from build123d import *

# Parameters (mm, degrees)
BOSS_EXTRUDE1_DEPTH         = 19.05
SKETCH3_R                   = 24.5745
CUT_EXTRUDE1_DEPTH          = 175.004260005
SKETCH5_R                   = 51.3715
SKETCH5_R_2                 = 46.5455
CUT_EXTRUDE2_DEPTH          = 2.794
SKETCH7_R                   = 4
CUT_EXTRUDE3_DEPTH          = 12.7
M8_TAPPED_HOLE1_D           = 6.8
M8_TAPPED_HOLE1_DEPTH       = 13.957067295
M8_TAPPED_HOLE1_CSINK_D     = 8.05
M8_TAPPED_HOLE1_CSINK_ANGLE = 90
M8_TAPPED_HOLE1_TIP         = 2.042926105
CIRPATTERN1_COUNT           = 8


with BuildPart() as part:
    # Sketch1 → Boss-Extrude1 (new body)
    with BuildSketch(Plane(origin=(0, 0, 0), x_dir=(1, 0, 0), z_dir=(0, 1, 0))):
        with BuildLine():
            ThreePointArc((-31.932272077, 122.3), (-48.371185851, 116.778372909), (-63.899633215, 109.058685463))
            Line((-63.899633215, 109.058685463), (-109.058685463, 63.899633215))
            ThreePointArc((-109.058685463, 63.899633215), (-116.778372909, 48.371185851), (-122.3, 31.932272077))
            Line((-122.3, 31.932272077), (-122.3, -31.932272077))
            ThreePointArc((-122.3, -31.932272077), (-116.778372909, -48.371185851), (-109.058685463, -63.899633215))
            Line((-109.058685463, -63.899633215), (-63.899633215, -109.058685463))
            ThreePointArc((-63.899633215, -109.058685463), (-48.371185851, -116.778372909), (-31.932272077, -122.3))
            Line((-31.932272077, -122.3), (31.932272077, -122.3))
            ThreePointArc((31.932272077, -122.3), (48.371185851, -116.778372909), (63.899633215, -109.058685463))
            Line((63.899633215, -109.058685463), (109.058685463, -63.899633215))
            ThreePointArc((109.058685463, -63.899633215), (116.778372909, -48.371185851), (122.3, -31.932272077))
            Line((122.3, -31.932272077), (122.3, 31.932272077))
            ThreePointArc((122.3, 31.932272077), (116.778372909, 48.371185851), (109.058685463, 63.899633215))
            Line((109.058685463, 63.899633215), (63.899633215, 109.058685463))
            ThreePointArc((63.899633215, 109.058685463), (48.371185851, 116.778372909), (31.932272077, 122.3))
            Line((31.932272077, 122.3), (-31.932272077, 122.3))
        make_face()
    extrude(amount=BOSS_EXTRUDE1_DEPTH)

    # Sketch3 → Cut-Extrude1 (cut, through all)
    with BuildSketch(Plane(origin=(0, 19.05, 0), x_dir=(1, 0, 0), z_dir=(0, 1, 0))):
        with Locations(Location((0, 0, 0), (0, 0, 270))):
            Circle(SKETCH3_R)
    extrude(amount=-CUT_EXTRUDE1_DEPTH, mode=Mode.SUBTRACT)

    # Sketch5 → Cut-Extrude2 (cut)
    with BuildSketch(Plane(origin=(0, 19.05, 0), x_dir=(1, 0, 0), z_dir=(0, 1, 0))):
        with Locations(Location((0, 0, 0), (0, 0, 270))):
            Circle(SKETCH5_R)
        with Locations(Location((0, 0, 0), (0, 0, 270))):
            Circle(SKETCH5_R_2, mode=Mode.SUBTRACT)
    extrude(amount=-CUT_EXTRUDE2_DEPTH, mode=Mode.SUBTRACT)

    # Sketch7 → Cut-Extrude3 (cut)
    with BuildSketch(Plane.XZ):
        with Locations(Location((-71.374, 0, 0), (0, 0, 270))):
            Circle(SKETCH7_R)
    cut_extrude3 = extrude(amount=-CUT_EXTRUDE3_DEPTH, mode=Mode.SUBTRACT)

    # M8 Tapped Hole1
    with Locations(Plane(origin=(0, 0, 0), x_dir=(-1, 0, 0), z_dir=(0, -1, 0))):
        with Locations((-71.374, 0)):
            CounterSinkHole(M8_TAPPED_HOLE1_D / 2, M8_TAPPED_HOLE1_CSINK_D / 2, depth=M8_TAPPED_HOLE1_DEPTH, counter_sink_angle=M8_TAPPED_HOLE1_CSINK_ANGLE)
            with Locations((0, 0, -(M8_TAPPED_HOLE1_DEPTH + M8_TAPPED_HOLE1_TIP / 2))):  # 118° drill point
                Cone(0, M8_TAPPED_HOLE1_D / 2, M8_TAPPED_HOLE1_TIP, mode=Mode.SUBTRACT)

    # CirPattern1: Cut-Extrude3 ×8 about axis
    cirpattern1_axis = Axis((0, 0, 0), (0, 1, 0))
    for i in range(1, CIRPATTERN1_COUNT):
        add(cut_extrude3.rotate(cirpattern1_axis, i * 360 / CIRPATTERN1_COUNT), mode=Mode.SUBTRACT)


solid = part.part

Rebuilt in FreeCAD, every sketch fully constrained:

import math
import FreeCAD as App
import Part
import Sketcher

V = App.Vector
Q = App.Units.Quantity

doc = App.newDocument("Part")
body = doc.addObject("PartDesign::Body", "Body")

# Sketch on XZ plane
sketch1 = body.newObject("Sketcher::SketchObject", "Sketch")
sketch1.AttachmentSupport = (doc.getObject("XZ_Plane"), [""])
sketch1.MapMode = "FlatFace"
sketch1.addGeometry(Part.ArcOfCircle(Part.Circle(V(0, 0, 0), V(0, 0, 1), 126), math.radians(-120.37), math.radians(-104.63)), False)
sketch1.addGeometry(Part.LineSegment(V(-64, -109, 0), V(-109, -64, 0)), False)
sketch1.addGeometry(Part.ArcOfCircle(Part.Circle(V(0, 0, 0), V(0, 0, 1), 126), math.radians(-165.37), math.radians(-149.63)), False)
sketch1.addGeometry(Part.LineSegment(V(-122, -32, 0), V(-122, 32, 0)), False)
sketch1.addGeometry(Part.ArcOfCircle(Part.Circle(V(0, 0, 0), V(0, 0, 1), 126), math.radians(149.63), math.radians(165.37)), False)
sketch1.addGeometry(Part.LineSegment(V(-109, 64, 0), V(-64, 109, 0)), False)
sketch1.addGeometry(Part.ArcOfCircle(Part.Circle(V(0, 0, 0), V(0, 0, 1), 126), math.radians(104.63), math.radians(120.37)), False)
sketch1.addGeometry(Part.LineSegment(V(-32, 122, 0), V(32, 122, 0)), False)
sketch1.addGeometry(Part.ArcOfCircle(Part.Circle(V(0, 0, 0), V(0, 0, 1), 126), math.radians(59.63), math.radians(75.37)), False)
sketch1.addGeometry(Part.LineSegment(V(64, 109, 0), V(109, 64, 0)), False)
sketch1.addGeometry(Part.ArcOfCircle(Part.Circle(V(0, 0, 0), V(0, 0, 1), 126), math.radians(14.63), math.radians(30.37)), False)
sketch1.addGeometry(Part.LineSegment(V(122, 32, 0), V(122, -32, 0)), False)
sketch1.addGeometry(Part.ArcOfCircle(Part.Circle(V(0, 0, 0), V(0, 0, 1), 126), math.radians(-30.37), math.radians(-14.63)), False)
sketch1.addGeometry(Part.LineSegment(V(109, -64, 0), V(64, -109, 0)), False)
sketch1.addGeometry(Part.ArcOfCircle(Part.Circle(V(0, 0, 0), V(0, 0, 1), 126), math.radians(-75.37), math.radians(-59.63)), False)
sketch1.addGeometry(Part.LineSegment(V(32, -122, 0), V(-32, -122, 0)), False)
sketch1.addConstraint(Sketcher.Constraint("Coincident", 0, 1, 1, 1))
sketch1.addConstraint(Sketcher.Constraint("Coincident", 1, 2, 2, 2))
sketch1.addConstraint(Sketcher.Constraint("Coincident", 2, 1, 3, 1))
sketch1.addConstraint(Sketcher.Constraint("Coincident", 3, 2, 4, 2))
sketch1.addConstraint(Sketcher.Constraint("Coincident", 4, 1, 5, 1))
sketch1.addConstraint(Sketcher.Constraint("Coincident", 5, 2, 6, 2))
sketch1.addConstraint(Sketcher.Constraint("Coincident", 6, 1, 7, 1))
sketch1.addConstraint(Sketcher.Constraint("Coincident", 7, 2, 8, 2))
sketch1.addConstraint(Sketcher.Constraint("Coincident", 8, 1, 9, 1))
sketch1.addConstraint(Sketcher.Constraint("Coincident", 9, 2, 10, 2))
sketch1.addConstraint(Sketcher.Constraint("Coincident", 10, 1, 11, 1))
sketch1.addConstraint(Sketcher.Constraint("Coincident", 11, 2, 12, 2))
sketch1.addConstraint(Sketcher.Constraint("Coincident", 12, 1, 13, 1))
sketch1.addConstraint(Sketcher.Constraint("Coincident", 13, 2, 14, 2))
sketch1.addConstraint(Sketcher.Constraint("Coincident", 14, 1, 15, 1))
sketch1.addConstraint(Sketcher.Constraint("Coincident", 15, 2, 0, 2))
sketch1.addConstraint(Sketcher.Constraint("Vertical", 3))
sketch1.addConstraint(Sketcher.Constraint("Horizontal", 7))
sketch1.addConstraint(Sketcher.Constraint("Vertical", 11))
sketch1.addConstraint(Sketcher.Constraint("Horizontal", 15))
sketch1.addConstraint(Sketcher.Constraint("Coincident", 0, 3, -1, 1))
sketch1.addConstraint(Sketcher.Constraint("Coincident", 2, 3, -1, 1))
sketch1.addConstraint(Sketcher.Constraint("Coincident", 4, 3, -1, 1))
sketch1.addConstraint(Sketcher.Constraint("Coincident", 6, 3, -1, 1))
sketch1.addConstraint(Sketcher.Constraint("Coincident", 8, 3, -1, 1))
sketch1.addConstraint(Sketcher.Constraint("Coincident", 10, 3, -1, 1))
sketch1.addConstraint(Sketcher.Constraint("Coincident", 12, 3, -1, 1))
sketch1.addConstraint(Sketcher.Constraint("Coincident", 14, 3, -1, 1))
sketch1.addConstraint(Sketcher.Constraint("Equal", 0, 2))
sketch1.addConstraint(Sketcher.Constraint("Equal", 2, 4))
sketch1.addConstraint(Sketcher.Constraint("Equal", 4, 6))
sketch1.addConstraint(Sketcher.Constraint("Equal", 6, 8))
sketch1.addConstraint(Sketcher.Constraint("Equal", 8, 10))
sketch1.addConstraint(Sketcher.Constraint("Equal", 10, 12))
sketch1.addConstraint(Sketcher.Constraint("Equal", 12, 14))
sketch1.addConstraint(Sketcher.Constraint("Perpendicular", 1, 5))
sketch1.addConstraint(Sketcher.Constraint("Perpendicular", 5, 9))
sketch1.addConstraint(Sketcher.Constraint("Perpendicular", 9, 13))
sketch1.addConstraint(Sketcher.Constraint("Horizontal", 5, 2, 8, 1))
sketch1.addConstraint(Sketcher.Constraint("Horizontal", 4, 1, 9, 2))
sketch1.addConstraint(Sketcher.Constraint("Horizontal", 3, 2, 10, 1))
sketch1.addConstraint(Sketcher.Constraint("Horizontal", 1, 2, 12, 1))
sketch1.addConstraint(Sketcher.Constraint("Vertical", 1, 2, 4, 1))
sketch1.addConstraint(Sketcher.Constraint("Vertical", 7, 2, 14, 1))
sketch1.addConstraint(Sketcher.Constraint("Equal", 15, 3))
sketch1.addConstraint(Sketcher.Constraint("Radius", 0, Q("126.4 mm")))
sketch1.addConstraint(Sketcher.Constraint("DistanceX", 2, 1, -1, 1, Q("122.3 mm")))
sketch1.addConstraint(Sketcher.Constraint("DistanceY", 1, 2, 2, 1, Q("31.967361 mm")))
pad1 = body.newObject("PartDesign::Pad", "Pad")
pad1.Profile = sketch1
pad1.Length = Q("0.75 in")
pad1.Reversed = True

# Sketch on XZ plane
sketch2 = body.newObject("Sketcher::SketchObject", "Sketch001")
sketch2.AttachmentSupport = (doc.getObject("XZ_Plane"), [""])
sketch2.MapMode = "FlatFace"
sketch2.AttachmentOffset = App.Placement(V(0, 0, -0.75 * 25.4), App.Rotation())
sketch2.addGeometry(Part.Circle(V(0, 0, 0), V(0, 0, 1), 25), False)
sketch2.addConstraint(Sketcher.Constraint("Coincident", 0, 3, -1, 1))
sketch2.addConstraint(Sketcher.Constraint("Diameter", 0, Q("1.935 in")))
pocket1 = body.newObject("PartDesign::Pocket", "Pocket")
pocket1.Profile = sketch2
pocket1.Type = "ThroughAll"
pocket1.Reversed = True

# Sketch on XZ plane
sketch3 = body.newObject("Sketcher::SketchObject", "Sketch002")
sketch3.AttachmentSupport = (doc.getObject("XZ_Plane"), [""])
sketch3.MapMode = "FlatFace"
sketch3.AttachmentOffset = App.Placement(V(0, 0, -0.75 * 25.4), App.Rotation())
sketch3.addGeometry(Part.Circle(V(0, 0, 0), V(0, 0, 1), 51), False)
sketch3.addGeometry(Part.Circle(V(0, 0, 0), V(0, 0, 1), 47), False)
sketch3.addConstraint(Sketcher.Constraint("Coincident", 0, 3, -1, 1))
sketch3.addConstraint(Sketcher.Constraint("Coincident", 1, 3, -1, 1))
sketch3.addConstraint(Sketcher.Constraint("Diameter", 0, Q("4.045 in")))
sketch3.addConstraint(Sketcher.Constraint("Diameter", 1, Q("3.665 in")))
pocket2 = body.newObject("PartDesign::Pocket", "Pocket001")
pocket2.Profile = sketch3
pocket2.Length = Q("0.11 in")
pocket2.Reversed = True

# Sketch on XZ plane
sketch4 = body.newObject("Sketcher::SketchObject", "Sketch003")
sketch4.AttachmentSupport = (doc.getObject("XZ_Plane"), [""])
sketch4.MapMode = "FlatFace"
sketch4.addGeometry(Part.Circle(V(-71.4, 0, 0), V(0, 0, 1), 4), False)
sketch4.addConstraint(Sketcher.Constraint("PointOnObject", 0, 3, -1))
sketch4.addConstraint(Sketcher.Constraint("Diameter", 0, Q("8 mm")))
sketch4.addConstraint(Sketcher.Constraint("DistanceX", 0, 3, -1, 1, Q("2.81 in")))
pocket3 = body.newObject("PartDesign::Pocket", "Pocket002")
pocket3.Profile = sketch4
pocket3.Length = Q("0.5 in")

# Sketch on XZ plane
sketch5 = body.newObject("Sketcher::SketchObject", "Sketch004")
sketch5.AttachmentSupport = (doc.getObject("XZ_Plane"), [""])
sketch5.MapMode = "FlatFace"
sketch5.addGeometry(Part.Circle(V(71.4, 0, 0), V(0, 0, 1), 3.4), False)
sketch5.addConstraint(Sketcher.Constraint("PointOnObject", 0, 3, -1))
sketch5.addConstraint(Sketcher.Constraint("Diameter", 0, Q("6.8 mm")))
sketch5.addConstraint(Sketcher.Constraint("DistanceX", -1, 1, 0, 3, Q("2.81 in")))
doc.recompute()
hole = body.newObject("PartDesign::Hole", "Hole")
hole.Profile = sketch5
hole.ThreadType = "None"
hole.Diameter = 6.8
hole.DepthType = "Dimension"
hole.Depth = 13.957067
hole.DrillPoint = "Angled"
hole.DrillPointAngle = 118
hole.HoleCutType = "Countersink"
hole.HoleCutDiameter = 8.05
hole.HoleCutCountersinkAngle = 90
doc.recompute()

polarpattern = body.newObject("PartDesign::PolarPattern", "PolarPattern")
polarpattern.Originals = [pocket3]
polarpattern.Axis = (doc.getObject("Y_Axis"), [""])
polarpattern.Angle = 360
polarpattern.Occurrences = 8
body.Tip = polarpattern

doc.recompute()
